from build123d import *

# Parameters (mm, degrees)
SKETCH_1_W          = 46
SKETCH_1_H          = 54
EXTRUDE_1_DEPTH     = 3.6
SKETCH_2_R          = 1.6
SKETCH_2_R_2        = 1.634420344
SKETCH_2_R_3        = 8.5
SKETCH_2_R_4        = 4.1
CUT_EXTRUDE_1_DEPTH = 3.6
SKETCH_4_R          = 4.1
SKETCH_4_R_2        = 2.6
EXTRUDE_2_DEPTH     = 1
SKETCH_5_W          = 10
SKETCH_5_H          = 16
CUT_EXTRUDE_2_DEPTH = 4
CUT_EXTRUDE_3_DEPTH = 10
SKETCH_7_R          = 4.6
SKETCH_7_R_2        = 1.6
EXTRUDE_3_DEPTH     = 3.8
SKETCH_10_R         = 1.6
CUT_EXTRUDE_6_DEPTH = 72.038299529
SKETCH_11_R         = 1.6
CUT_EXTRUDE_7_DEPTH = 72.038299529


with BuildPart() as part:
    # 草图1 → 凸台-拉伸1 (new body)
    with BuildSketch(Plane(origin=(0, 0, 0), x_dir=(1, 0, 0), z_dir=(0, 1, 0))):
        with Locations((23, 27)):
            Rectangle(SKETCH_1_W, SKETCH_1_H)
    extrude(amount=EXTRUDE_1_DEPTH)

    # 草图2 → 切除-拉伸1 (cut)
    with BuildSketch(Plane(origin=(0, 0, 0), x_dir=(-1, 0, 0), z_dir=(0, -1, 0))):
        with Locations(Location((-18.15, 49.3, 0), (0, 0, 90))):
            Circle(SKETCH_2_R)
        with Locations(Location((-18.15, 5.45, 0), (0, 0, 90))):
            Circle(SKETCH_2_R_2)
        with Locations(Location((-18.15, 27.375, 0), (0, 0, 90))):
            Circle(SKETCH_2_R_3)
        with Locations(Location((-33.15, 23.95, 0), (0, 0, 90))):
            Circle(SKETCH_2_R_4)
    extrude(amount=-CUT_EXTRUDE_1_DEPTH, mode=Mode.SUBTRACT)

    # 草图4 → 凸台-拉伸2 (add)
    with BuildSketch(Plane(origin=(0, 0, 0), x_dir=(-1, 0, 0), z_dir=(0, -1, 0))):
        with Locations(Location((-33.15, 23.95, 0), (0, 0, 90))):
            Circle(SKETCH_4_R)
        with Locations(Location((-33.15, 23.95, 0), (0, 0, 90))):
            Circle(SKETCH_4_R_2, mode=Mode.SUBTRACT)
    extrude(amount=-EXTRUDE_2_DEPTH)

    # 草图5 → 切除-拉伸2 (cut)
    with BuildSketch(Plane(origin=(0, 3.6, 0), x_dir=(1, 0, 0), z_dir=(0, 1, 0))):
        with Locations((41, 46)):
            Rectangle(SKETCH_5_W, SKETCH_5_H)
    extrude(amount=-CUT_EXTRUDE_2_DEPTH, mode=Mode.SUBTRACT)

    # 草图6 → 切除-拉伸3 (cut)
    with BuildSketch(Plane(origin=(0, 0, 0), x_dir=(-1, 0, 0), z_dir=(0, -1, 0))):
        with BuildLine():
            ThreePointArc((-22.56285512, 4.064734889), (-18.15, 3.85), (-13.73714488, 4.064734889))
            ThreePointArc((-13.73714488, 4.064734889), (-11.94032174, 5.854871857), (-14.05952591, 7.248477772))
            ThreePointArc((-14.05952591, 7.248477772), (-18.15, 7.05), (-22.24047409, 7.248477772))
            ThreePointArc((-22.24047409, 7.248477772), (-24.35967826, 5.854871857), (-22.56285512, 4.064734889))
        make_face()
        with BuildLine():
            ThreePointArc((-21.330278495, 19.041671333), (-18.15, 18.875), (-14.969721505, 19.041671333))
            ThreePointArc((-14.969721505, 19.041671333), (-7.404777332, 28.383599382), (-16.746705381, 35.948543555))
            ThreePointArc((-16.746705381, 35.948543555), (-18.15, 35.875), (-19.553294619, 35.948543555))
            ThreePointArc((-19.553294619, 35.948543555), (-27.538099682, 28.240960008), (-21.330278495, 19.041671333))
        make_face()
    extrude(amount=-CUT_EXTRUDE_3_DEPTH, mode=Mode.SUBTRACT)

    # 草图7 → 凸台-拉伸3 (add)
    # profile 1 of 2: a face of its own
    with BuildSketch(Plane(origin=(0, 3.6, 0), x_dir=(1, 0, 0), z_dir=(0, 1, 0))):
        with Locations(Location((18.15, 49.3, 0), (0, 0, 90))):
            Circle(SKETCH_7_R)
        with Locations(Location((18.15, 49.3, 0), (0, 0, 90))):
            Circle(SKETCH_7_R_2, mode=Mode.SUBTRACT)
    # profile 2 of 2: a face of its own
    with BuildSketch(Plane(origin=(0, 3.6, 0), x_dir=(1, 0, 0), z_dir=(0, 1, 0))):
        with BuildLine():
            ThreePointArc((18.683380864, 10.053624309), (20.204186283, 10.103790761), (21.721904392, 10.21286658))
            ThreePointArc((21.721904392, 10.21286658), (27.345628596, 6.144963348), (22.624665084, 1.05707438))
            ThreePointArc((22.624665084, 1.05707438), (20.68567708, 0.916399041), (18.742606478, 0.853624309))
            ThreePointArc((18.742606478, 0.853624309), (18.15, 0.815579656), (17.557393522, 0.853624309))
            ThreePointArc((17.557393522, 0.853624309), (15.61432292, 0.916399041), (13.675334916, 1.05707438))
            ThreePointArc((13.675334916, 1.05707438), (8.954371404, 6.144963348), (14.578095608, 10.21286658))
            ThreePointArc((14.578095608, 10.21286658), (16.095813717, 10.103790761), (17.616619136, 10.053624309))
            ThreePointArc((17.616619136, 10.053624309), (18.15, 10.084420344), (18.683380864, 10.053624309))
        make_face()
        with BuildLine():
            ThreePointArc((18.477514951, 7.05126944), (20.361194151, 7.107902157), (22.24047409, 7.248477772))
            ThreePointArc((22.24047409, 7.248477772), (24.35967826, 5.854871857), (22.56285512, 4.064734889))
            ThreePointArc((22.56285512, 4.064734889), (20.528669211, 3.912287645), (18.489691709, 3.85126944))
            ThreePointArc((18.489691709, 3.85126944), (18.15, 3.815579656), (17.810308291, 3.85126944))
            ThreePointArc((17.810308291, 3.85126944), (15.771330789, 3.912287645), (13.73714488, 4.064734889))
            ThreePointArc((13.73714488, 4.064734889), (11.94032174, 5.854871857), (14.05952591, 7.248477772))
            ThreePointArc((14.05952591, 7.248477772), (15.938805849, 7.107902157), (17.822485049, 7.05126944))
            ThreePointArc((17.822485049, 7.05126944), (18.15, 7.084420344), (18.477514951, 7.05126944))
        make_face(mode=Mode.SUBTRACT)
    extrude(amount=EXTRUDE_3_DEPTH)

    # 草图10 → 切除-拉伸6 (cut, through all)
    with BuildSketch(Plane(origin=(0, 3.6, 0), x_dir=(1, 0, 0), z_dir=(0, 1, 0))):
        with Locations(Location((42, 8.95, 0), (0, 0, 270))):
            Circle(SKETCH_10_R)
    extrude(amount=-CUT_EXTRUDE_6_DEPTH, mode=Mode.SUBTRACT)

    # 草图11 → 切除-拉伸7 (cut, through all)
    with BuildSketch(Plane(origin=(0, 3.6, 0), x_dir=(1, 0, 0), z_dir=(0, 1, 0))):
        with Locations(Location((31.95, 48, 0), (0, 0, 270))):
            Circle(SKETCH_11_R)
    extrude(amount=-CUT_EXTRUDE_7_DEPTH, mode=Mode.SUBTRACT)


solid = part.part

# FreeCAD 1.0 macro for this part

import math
import FreeCAD as App
import Part
import Sketcher
from FreeCAD import Vector

doc = App.newDocument("Part")
body = doc.addObject("PartDesign::Body", "Body")

# Sketch on XZ plane
sketch1 = doc.addObject("Sketcher::SketchObject", "Sketch")
body.addObject(sketch1)
sketch1.AttachmentSupport = (doc.XZ_Plane, [""])
sketch1.MapMode = "FlatFace"
sketch1.addGeometry([
    Part.LineSegment(Vector(0, -54, 0), Vector(0, 0, 0)),
    Part.LineSegment(Vector(0, 0, 0), Vector(46, 0, 0)),
    Part.LineSegment(Vector(46, 0, 0), Vector(46, -54, 0)),
    Part.LineSegment(Vector(46, -54, 0), Vector(0, -54, 0)),
], False)
sketch1.addConstraint([
    Sketcher.Constraint("Coincident", 0, 2, 1, 1),
    Sketcher.Constraint("Coincident", 1, 2, 2, 1),
    Sketcher.Constraint("Coincident", 2, 2, 3, 1),
    Sketcher.Constraint("Coincident", 3, 2, 0, 1),
    Sketcher.Constraint("Vertical", 0),
    Sketcher.Constraint("Horizontal", 1),
    Sketcher.Constraint("Vertical", 2),
    Sketcher.Constraint("Horizontal", 3),
    Sketcher.Constraint("Coincident", 0, 2, -1, 1),
    Sketcher.Constraint("DistanceX", 1, 1, 1, 2, 46.0),
    Sketcher.Constraint("DistanceY", 0, 1, 0, 2, 54.0),
])
pad1 = doc.addObject("PartDesign::Pad", "Pad")
body.addObject(pad1)
pad1.Profile = sketch1
pad1.Length = 3.6
pad1.Reversed = True

# Sketch on XZ plane
sketch2 = doc.addObject("Sketcher::SketchObject", "Sketch001")
body.addObject(sketch2)
sketch2.AttachmentSupport = (doc.XZ_Plane, [""])
sketch2.MapMode = "FlatFace"
sketch2.addGeometry([
    Part.Circle(Vector(18.1, -49.3, 0), Vector(0, 0, 1), 1.6),
    Part.Circle(Vector(18.1, -5.5, 0), Vector(0, 0, 1), 1.6),
    Part.Circle(Vector(18.1, -27.4, 0), Vector(0, 0, 1), 8.5),
    Part.Circle(Vector(33.1, -23.9, 0), Vector(0, 0, 1), 4.1),
], False)
sketch2.addConstraint([
    Sketcher.Constraint("Vertical", 0, 3, 1, 3),
    Sketcher.Constraint("Vertical", 1, 3, 2, 3),
    Sketcher.Constraint("Diameter", 2, 17.0),
    Sketcher.Constraint("Diameter", 0, 3.2),
    Sketcher.Constraint("Diameter", 3, 8.2),
    Sketcher.Constraint("DistanceX", 2, 3, 3, 3, 15.0),
    Sketcher.Constraint("DistanceY", 0, 3, -1, 1, 49.3),
    Sketcher.Constraint("DistanceY", 3, 3, 1, 3, 18.5),
    Sketcher.Constraint("Diameter", 1, 3.268841),
    Sketcher.Constraint("DistanceX", -1, 1, 0, 3, 18.15),
    Sketcher.Constraint("DistanceY", 1, 3, -1, 1, 5.45),
    Sketcher.Constraint("DistanceY", 2, 3, -1, 1, 27.375),
])
pocket1 = doc.addObject("PartDesign::Pocket", "Pocket")
body.addObject(pocket1)
pocket1.Profile = sketch2
pocket1.Length = 3.6

# Sketch on XZ plane
sketch3 = doc.addObject("Sketcher::SketchObject", "Sketch002")
body.addObject(sketch3)
sketch3.AttachmentSupport = (doc.XZ_Plane, [""])
sketch3.MapMode = "FlatFace"
sketch3.addGeometry([
    Part.Circle(Vector(33.1, -23.9, 0), Vector(0, 0, 1), 4.1),
    Part.Circle(Vector(33.1, -23.9, 0), Vector(0, 0, 1), 2.6),
], False)
sketch3.addConstraint([
    Sketcher.Constraint("Coincident", 1, 3, 0, 3),
    Sketcher.Constraint("Diameter", 0, 8.2),
    Sketcher.Constraint("Diameter", 1, 5.2),
    Sketcher.Constraint("DistanceX", -1, 1, 0, 3, 33.15),
    Sketcher.Constraint("DistanceY", 0, 3, -1, 1, 23.95),
])
pad2 = doc.addObject("PartDesign::Pad", "Pad001")
body.addObject(pad2)
pad2.Profile = sketch3
pad2.Length = 1
pad2.Reversed = True

# Sketch on XZ plane
sketch4 = doc.addObject("Sketcher::SketchObject", "Sketch003")
body.addObject(sketch4)
sketch4.AttachmentSupport = (doc.XZ_Plane, [""])
sketch4.MapMode = "FlatFace"
sketch4.AttachmentOffset = App.Placement(Vector(0, 0, -3.6), App.Rotation())
sketch4.addGeometry([
    Part.LineSegment(Vector(36, -54, 0), Vector(36, -38, 0)),
    Part.LineSegment(Vector(36, -38, 0), Vector(46, -38, 0)),
    Part.LineSegment(Vector(46, -38, 0), Vector(46, -54, 0)),
    Part.LineSegment(Vector(46, -54, 0), Vector(36, -54, 0)),
], False)
sketch4.addConstraint([
    Sketcher.Constraint("Coincident", 0, 2, 1, 1),
    Sketcher.Constraint("Coincident", 1, 2, 2, 1),
    Sketcher.Constraint("Coincident", 2, 2, 3, 1),
    Sketcher.Constraint("Coincident", 3, 2, 0, 1),
    Sketcher.Constraint("Vertical", 0),
    Sketcher.Constraint("Horizontal", 1),
    Sketcher.Constraint("Vertical", 2),
    Sketcher.Constraint("Horizontal", 3),
    Sketcher.Constraint("DistanceX", 1, 1, 1, 2, 10.0),
    Sketcher.Constraint("DistanceY", 0, 1, 0, 2, 16.0),
    Sketcher.Constraint("DistanceX", -1, 1, 0, 2, 36.0),
    Sketcher.Constraint("DistanceY", 0, 2, -1, 1, 38.0),
])
pocket2 = doc.addObject("PartDesign::Pocket", "Pocket001")
body.addObject(pocket2)
pocket2.Profile = sketch4
pocket2.Length = 4
pocket2.Reversed = True

# Sketch on XZ plane
sketch5 = doc.addObject("Sketcher::SketchObject", "Sketch004")
body.addObject(sketch5)
sketch5.AttachmentSupport = (doc.XZ_Plane, [""])
sketch5.MapMode = "FlatFace"
sketch5.addGeometry([
    Part.ArcOfCircle(Part.Circle(Vector(18.1, -49.3, 0), Vector(0, 0, 1), 45.4), math.radians(84.43), math.radians(95.57)),  # 0
    Part.ArcOfCircle(Part.Circle(Vector(13.6, -5.7, 0), Vector(0, 0, 1), 1.6), math.radians(84), math.radians(288)),  # 1
    Part.ArcOfCircle(Part.Circle(Vector(18.1, -49.3, 0), Vector(0, 0, 1), 42.2), math.radians(84.44), math.radians(95.56)),  # 2
    Part.ArcOfCircle(Part.Circle(Vector(22.7, -5.7, 0), Vector(0, 0, 1), 1.6), math.radians(-108), math.radians(96)),  # 3
    Part.ArcOfCircle(Part.Circle(Vector(18.1, -49.3, 0), Vector(0, 0, 1), 30.4), math.radians(84), math.radians(96)),  # 4
    Part.ArcOfCircle(Part.Circle(Vector(15.9, -27.5, 0), Vector(0, 0, 1), 8.5), math.radians(96), math.radians(276)),  # 5
    Part.ArcOfCircle(Part.Circle(Vector(18.1, -49.3, 0), Vector(0, 0, 1), 13.4), math.radians(84), math.radians(96)),  # 6
    Part.ArcOfCircle(Part.Circle(Vector(19, -27.3, 0), Vector(0, 0, 1), 8.6), math.radians(-86), math.radians(74)),  # 7
], False)
sketch5.addConstraint([
    Sketcher.Constraint("Coincident", 0, 2, 1, 1),
    Sketcher.Constraint("Coincident", 1, 2, 2, 2),
    Sketcher.Constraint("Coincident", 2, 1, 3, 1),
    Sketcher.Constraint("Coincident", 3, 2, 0, 1),
    Sketcher.Constraint("Tangent", 4, 2, 5, 1),
    Sketcher.Constraint("Tangent", 5, 2, 6, 2),
    Sketcher.Constraint("Coincident", 6, 1, 7, 1),
    Sketcher.Constraint("Coincident", 7, 2, 4, 1),
    Sketcher.Constraint("Coincident", 2, 3, 0, 3),
    Sketcher.Constraint("Coincident", 4, 3, 0, 3),
    Sketcher.Constraint("Coincident", 6, 3, 0, 3),
    Sketcher.Constraint("Equal", 1, 3),
    Sketcher.Constraint("Horizontal", 1, 3, 3, 3),
    Sketcher.Constraint("Horizontal", 1, 2, 2, 1),
    Sketcher.Constraint("Horizontal", 5, 2, 6, 1),
    Sketcher.Constraint("Horizontal", 4, 2, 7, 2),
    Sketcher.Constraint("Radius", 5, 8.5),
    Sketcher.Constraint("Radius", 0, 45.45),
    Sketcher.Constraint("Radius", 2, 42.25),
    Sketcher.Constraint("Radius", 4, 30.425),
    Sketcher.Constraint("DistanceY", 0, 3, -1, 1, 49.3),
    Sketcher.Constraint("DistanceX", -1, 1, 0, 3, 18.15),
    Sketcher.Constraint("Radius", 1, 1.63442),
    Sketcher.Constraint("Radius", 7, 8.630485),
    Sketcher.Constraint("DistanceX", 1, 3, 1, 2, 0.493099),
    Sketcher.Constraint("DistanceX", 7, 3, 6, 1, 0.598401),
    Sketcher.Constraint("DistanceX", 5, 3, 3, 3, 6.87536),
])
pocket3 = doc.addObject("PartDesign::Pocket", "Pocket002")
body.addObject(pocket3)
pocket3.Profile = sketch5
pocket3.Length = 10

# Sketch on XZ plane
sketch6 = doc.addObject("Sketcher::SketchObject", "Sketch005")
body.addObject(sketch6)
sketch6.AttachmentSupport = (doc.XZ_Plane, [""])
sketch6.MapMode = "FlatFace"
sketch6.AttachmentOffset = App.Placement(Vector(0, 0, -3.6), App.Rotation())
sketch6.addGeometry([
    Part.Circle(Vector(18.1, -49.3, 0), Vector(0, 0, 1), 4.6),  # 0
    Part.Circle(Vector(18.1, -49.3, 0), Vector(0, 0, 1), 1.6),  # 1
    Part.ArcOfCircle(Part.Circle(Vector(18.1, -49.3, 0), Vector(0, 0, 1), 39.3), math.radians(84.78), math.radians(89.22)),  # 2
    Part.ArcOfCircle(Part.Circle(Vector(18.1, -5.5, 0), Vector(0, 0, 1), 4.6), math.radians(-96.61), math.radians(-83.39)),  # 3
    Part.ArcOfCircle(Part.Circle(Vector(18.2, -49.3, 0), Vector(0, 0, 1), 39.3), math.radians(90.78), math.radians(95.22)),  # 4
    Part.ArcOfCircle(Part.Circle(Vector(13.6, -5.7, 0), Vector(0, 0, 1), 4.6), math.radians(89), math.radians(283)),  # 5
    Part.ArcOfCircle(Part.Circle(Vector(18.2, -49.3, 0), Vector(0, 0, 1), 48.4), math.radians(90.7), math.radians(95.3)),  # 6
    Part.ArcOfCircle(Part.Circle(Vector(18.1, -5.5, 0), Vector(0, 0, 1), 4.6), math.radians(82.65), math.radians(97.35)),  # 7
    Part.ArcOfCircle(Part.Circle(Vector(18.1, -49.3, 0), Vector(0, 0, 1), 48.4), math.radians(84.7), math.radians(89.3)),  # 8
    Part.ArcOfCircle(Part.Circle(Vector(22.7, -5.7, 0), Vector(0, 0, 1), 4.6), math.radians(-103), math.radians(91)),  # 9
    Part.ArcOfCircle(Part.Circle(Vector(18.1, -49.3, 0), Vector(0, 0, 1), 42.3), math.radians(84.44), math.radians(89.56)),  # 10
    Part.ArcOfCircle(Part.Circle(Vector(22.7, -5.7, 0), Vector(0, 0, 1), 1.6), math.radians(-108), math.radians(96)),  # 11
    Part.ArcOfCircle(Part.Circle(Vector(18.2, -49.3, 0), Vector(0, 0, 1), 45.4), math.radians(84.43), math.radians(89.57)),  # 12
    Part.ArcOfCircle(Part.Circle(Vector(18.1, -5.4, 0), Vector(0, 0, 1), 1.6), math.radians(78), math.radians(102)),  # 13
    Part.ArcOfCircle(Part.Circle(Vector(18.1, -49.3, 0), Vector(0, 0, 1), 45.4), math.radians(90.43), math.radians(95.57)),  # 14
    Part.ArcOfCircle(Part.Circle(Vector(13.6, -5.7, 0), Vector(0, 0, 1), 1.6), math.radians(84), math.radians(288)),  # 15
    Part.ArcOfCircle(Part.Circle(Vector(18.2, -49.3, 0), Vector(0, 0, 1), 42.3), math.radians(90.44), math.radians(95.56)),  # 16
    Part.ArcOfCircle(Part.Circle(Vector(18.1, -5.4, 0), Vector(0, 0, 1), 1.6), math.radians(-102), math.radians(-78)),  # 17
], False)
sketch6.addConstraint([
    Sketcher.Constraint("Coincident", 2, 2, 3, 2),
    Sketcher.Constraint("Coincident", 3, 1, 4, 1),
    Sketcher.Constraint("Coincident", 4, 2, 5, 2),
    Sketcher.Constraint("Coincident", 5, 1, 6, 2),
    Sketcher.Constraint("Coincident", 6, 1, 7, 2),
    Sketcher.Constraint("Coincident", 7, 1, 8, 2),
    Sketcher.Constraint("Coincident", 8, 1, 9, 2),
    Sketcher.Constraint("Coincident", 9, 1, 2, 1),
    Sketcher.Constraint("Coincident", 10, 1, 11, 1),
    Sketcher.Constraint("Coincident", 11, 2, 12, 1),
    Sketcher.Constraint("Coincident", 12, 2, 13, 1),
    Sketcher.Constraint("Coincident", 13, 2, 14, 1),
    Sketcher.Constraint("Coincident", 14, 2, 15, 1),
    Sketcher.Constraint("Coincident", 15, 2, 16, 2),
    Sketcher.Constraint("Coincident", 16, 1, 17, 1),
    Sketcher.Constraint("Coincident", 17, 2, 10, 2),
    Sketcher.Constraint("Coincident", 1, 3, 0, 3),
    Sketcher.Constraint("Coincident", 2, 3, 0, 3),
    Sketcher.Constraint("Coincident", 4, 3, 0, 3),
    Sketcher.Constraint("Coincident", 6, 3, 0, 3),
    Sketcher.Constraint("Coincident", 7, 3, 3, 3),
    Sketcher.Constraint("Coincident", 8, 3, 0, 3),
    Sketcher.Constraint("Coincident", 10, 3, 0, 3),
    Sketcher.Constraint("Coincident", 11, 3, 9, 3),
    Sketcher.Constraint("Coincident", 12, 3, 0, 3),
    Sketcher.Constraint("Coincident", 13, 3, 3, 3),
    Sketcher.Constraint("Coincident", 14, 3, 0, 3),
    Sketcher.Constraint("Coincident", 15, 3, 5, 3),
    Sketcher.Constraint("Coincident", 16, 3, 0, 3),
    Sketcher.Constraint("Coincident", 17, 3, 3, 3),
    Sketcher.Constraint("Equal", 2, 4),
    Sketcher.Constraint("Equal", 3, 5),
    Sketcher.Constraint("Equal", 5, 7),
    Sketcher.Constraint("Equal", 6, 8),
    Sketcher.Constraint("Equal", 7, 9),
    Sketcher.Constraint("Equal", 11, 13),
    Sketcher.Constraint("Equal", 12, 14),
    Sketcher.Constraint("Equal", 13, 15),
    Sketcher.Constraint("Equal", 10, 16),
    Sketcher.Constraint("Equal", 15, 17),
    Sketcher.Constraint("Horizontal", 5, 3, 9, 3),
    Sketcher.Constraint("Horizontal", 2, 2, 3, 1),
    Sketcher.Constraint("Horizontal", 5, 1, 8, 1),
    Sketcher.Constraint("Diameter", 0, 9.2),
    Sketcher.Constraint("Diameter", 1, 3.2),
    Sketcher.Constraint("Radius", 2, 39.25),
    Sketcher.Constraint("Radius", 6, 48.45),
    Sketcher.Constraint("Radius", 10, 42.25),
    Sketcher.Constraint("Radius", 12, 45.449999),
    Sketcher.Constraint("DistanceY", 0, 3, -1, 1, 49.3),
    Sketcher.Constraint("DistanceX", -1, 1, 0, 3, 18.15),
    Sketcher.Constraint("DistanceY", 3, 3, -1, 1, 5.45),
    Sketcher.Constraint("Radius", 3, 4.63442),
    Sketcher.Constraint("Radius", 11, 1.63442),
    Sketcher.Constraint("DistanceX", 10, 1, 9, 3, 0.493099),
    Sketcher.Constraint("DistanceY", 2, 2, 9, 3, 4.363409),
])
pad3 = doc.addObject("PartDesign::Pad", "Pad002")
body.addObject(pad3)
pad3.Profile = sketch6
pad3.Length = 3.8
pad3.Reversed = True

# Sketch on XZ plane
sketch7 = doc.addObject("Sketcher::SketchObject", "Sketch006")
body.addObject(sketch7)
sketch7.AttachmentSupport = (doc.XZ_Plane, [""])
sketch7.MapMode = "FlatFace"
sketch7.AttachmentOffset = App.Placement(Vector(0, 0, -3.6), App.Rotation())
sketch7.addGeometry(Part.Circle(Vector(42, -8.9, 0), Vector(0, 0, 1), 1.6), False)
sketch7.addConstraint([
    Sketcher.Constraint("Diameter", 0, 3.2),
    Sketcher.Constraint("DistanceX", -1, 1, 0, 3, 42.0),
    Sketcher.Constraint("DistanceY", 0, 3, -1, 1, 8.95),
])
pocket4 = doc.addObject("PartDesign::Pocket", "Pocket003")
body.addObject(pocket4)
pocket4.Profile = sketch7
pocket4.Type = "ThroughAll"
pocket4.Reversed = True

# Sketch on XZ plane
sketch8 = doc.addObject("Sketcher::SketchObject", "Sketch007")
body.addObject(sketch8)
sketch8.AttachmentSupport = (doc.XZ_Plane, [""])
sketch8.MapMode = "FlatFace"
sketch8.AttachmentOffset = App.Placement(Vector(0, 0, -3.6), App.Rotation())
sketch8.addGeometry(Part.Circle(Vector(31.9, -48, 0), Vector(0, 0, 1), 1.6), False)
sketch8.addConstraint([
    Sketcher.Constraint("Diameter", 0, 3.2),
    Sketcher.Constraint("DistanceY", 0, 3, -1, 1, 48.0),
    Sketcher.Constraint("DistanceX", -1, 1, 0, 3, 31.95),
])
pocket5 = doc.addObject("PartDesign::Pocket", "Pocket004")
body.addObject(pocket5)
pocket5.Profile = sketch8
pocket5.Type = "ThroughAll"
pocket5.Reversed = True

doc.recompute()
